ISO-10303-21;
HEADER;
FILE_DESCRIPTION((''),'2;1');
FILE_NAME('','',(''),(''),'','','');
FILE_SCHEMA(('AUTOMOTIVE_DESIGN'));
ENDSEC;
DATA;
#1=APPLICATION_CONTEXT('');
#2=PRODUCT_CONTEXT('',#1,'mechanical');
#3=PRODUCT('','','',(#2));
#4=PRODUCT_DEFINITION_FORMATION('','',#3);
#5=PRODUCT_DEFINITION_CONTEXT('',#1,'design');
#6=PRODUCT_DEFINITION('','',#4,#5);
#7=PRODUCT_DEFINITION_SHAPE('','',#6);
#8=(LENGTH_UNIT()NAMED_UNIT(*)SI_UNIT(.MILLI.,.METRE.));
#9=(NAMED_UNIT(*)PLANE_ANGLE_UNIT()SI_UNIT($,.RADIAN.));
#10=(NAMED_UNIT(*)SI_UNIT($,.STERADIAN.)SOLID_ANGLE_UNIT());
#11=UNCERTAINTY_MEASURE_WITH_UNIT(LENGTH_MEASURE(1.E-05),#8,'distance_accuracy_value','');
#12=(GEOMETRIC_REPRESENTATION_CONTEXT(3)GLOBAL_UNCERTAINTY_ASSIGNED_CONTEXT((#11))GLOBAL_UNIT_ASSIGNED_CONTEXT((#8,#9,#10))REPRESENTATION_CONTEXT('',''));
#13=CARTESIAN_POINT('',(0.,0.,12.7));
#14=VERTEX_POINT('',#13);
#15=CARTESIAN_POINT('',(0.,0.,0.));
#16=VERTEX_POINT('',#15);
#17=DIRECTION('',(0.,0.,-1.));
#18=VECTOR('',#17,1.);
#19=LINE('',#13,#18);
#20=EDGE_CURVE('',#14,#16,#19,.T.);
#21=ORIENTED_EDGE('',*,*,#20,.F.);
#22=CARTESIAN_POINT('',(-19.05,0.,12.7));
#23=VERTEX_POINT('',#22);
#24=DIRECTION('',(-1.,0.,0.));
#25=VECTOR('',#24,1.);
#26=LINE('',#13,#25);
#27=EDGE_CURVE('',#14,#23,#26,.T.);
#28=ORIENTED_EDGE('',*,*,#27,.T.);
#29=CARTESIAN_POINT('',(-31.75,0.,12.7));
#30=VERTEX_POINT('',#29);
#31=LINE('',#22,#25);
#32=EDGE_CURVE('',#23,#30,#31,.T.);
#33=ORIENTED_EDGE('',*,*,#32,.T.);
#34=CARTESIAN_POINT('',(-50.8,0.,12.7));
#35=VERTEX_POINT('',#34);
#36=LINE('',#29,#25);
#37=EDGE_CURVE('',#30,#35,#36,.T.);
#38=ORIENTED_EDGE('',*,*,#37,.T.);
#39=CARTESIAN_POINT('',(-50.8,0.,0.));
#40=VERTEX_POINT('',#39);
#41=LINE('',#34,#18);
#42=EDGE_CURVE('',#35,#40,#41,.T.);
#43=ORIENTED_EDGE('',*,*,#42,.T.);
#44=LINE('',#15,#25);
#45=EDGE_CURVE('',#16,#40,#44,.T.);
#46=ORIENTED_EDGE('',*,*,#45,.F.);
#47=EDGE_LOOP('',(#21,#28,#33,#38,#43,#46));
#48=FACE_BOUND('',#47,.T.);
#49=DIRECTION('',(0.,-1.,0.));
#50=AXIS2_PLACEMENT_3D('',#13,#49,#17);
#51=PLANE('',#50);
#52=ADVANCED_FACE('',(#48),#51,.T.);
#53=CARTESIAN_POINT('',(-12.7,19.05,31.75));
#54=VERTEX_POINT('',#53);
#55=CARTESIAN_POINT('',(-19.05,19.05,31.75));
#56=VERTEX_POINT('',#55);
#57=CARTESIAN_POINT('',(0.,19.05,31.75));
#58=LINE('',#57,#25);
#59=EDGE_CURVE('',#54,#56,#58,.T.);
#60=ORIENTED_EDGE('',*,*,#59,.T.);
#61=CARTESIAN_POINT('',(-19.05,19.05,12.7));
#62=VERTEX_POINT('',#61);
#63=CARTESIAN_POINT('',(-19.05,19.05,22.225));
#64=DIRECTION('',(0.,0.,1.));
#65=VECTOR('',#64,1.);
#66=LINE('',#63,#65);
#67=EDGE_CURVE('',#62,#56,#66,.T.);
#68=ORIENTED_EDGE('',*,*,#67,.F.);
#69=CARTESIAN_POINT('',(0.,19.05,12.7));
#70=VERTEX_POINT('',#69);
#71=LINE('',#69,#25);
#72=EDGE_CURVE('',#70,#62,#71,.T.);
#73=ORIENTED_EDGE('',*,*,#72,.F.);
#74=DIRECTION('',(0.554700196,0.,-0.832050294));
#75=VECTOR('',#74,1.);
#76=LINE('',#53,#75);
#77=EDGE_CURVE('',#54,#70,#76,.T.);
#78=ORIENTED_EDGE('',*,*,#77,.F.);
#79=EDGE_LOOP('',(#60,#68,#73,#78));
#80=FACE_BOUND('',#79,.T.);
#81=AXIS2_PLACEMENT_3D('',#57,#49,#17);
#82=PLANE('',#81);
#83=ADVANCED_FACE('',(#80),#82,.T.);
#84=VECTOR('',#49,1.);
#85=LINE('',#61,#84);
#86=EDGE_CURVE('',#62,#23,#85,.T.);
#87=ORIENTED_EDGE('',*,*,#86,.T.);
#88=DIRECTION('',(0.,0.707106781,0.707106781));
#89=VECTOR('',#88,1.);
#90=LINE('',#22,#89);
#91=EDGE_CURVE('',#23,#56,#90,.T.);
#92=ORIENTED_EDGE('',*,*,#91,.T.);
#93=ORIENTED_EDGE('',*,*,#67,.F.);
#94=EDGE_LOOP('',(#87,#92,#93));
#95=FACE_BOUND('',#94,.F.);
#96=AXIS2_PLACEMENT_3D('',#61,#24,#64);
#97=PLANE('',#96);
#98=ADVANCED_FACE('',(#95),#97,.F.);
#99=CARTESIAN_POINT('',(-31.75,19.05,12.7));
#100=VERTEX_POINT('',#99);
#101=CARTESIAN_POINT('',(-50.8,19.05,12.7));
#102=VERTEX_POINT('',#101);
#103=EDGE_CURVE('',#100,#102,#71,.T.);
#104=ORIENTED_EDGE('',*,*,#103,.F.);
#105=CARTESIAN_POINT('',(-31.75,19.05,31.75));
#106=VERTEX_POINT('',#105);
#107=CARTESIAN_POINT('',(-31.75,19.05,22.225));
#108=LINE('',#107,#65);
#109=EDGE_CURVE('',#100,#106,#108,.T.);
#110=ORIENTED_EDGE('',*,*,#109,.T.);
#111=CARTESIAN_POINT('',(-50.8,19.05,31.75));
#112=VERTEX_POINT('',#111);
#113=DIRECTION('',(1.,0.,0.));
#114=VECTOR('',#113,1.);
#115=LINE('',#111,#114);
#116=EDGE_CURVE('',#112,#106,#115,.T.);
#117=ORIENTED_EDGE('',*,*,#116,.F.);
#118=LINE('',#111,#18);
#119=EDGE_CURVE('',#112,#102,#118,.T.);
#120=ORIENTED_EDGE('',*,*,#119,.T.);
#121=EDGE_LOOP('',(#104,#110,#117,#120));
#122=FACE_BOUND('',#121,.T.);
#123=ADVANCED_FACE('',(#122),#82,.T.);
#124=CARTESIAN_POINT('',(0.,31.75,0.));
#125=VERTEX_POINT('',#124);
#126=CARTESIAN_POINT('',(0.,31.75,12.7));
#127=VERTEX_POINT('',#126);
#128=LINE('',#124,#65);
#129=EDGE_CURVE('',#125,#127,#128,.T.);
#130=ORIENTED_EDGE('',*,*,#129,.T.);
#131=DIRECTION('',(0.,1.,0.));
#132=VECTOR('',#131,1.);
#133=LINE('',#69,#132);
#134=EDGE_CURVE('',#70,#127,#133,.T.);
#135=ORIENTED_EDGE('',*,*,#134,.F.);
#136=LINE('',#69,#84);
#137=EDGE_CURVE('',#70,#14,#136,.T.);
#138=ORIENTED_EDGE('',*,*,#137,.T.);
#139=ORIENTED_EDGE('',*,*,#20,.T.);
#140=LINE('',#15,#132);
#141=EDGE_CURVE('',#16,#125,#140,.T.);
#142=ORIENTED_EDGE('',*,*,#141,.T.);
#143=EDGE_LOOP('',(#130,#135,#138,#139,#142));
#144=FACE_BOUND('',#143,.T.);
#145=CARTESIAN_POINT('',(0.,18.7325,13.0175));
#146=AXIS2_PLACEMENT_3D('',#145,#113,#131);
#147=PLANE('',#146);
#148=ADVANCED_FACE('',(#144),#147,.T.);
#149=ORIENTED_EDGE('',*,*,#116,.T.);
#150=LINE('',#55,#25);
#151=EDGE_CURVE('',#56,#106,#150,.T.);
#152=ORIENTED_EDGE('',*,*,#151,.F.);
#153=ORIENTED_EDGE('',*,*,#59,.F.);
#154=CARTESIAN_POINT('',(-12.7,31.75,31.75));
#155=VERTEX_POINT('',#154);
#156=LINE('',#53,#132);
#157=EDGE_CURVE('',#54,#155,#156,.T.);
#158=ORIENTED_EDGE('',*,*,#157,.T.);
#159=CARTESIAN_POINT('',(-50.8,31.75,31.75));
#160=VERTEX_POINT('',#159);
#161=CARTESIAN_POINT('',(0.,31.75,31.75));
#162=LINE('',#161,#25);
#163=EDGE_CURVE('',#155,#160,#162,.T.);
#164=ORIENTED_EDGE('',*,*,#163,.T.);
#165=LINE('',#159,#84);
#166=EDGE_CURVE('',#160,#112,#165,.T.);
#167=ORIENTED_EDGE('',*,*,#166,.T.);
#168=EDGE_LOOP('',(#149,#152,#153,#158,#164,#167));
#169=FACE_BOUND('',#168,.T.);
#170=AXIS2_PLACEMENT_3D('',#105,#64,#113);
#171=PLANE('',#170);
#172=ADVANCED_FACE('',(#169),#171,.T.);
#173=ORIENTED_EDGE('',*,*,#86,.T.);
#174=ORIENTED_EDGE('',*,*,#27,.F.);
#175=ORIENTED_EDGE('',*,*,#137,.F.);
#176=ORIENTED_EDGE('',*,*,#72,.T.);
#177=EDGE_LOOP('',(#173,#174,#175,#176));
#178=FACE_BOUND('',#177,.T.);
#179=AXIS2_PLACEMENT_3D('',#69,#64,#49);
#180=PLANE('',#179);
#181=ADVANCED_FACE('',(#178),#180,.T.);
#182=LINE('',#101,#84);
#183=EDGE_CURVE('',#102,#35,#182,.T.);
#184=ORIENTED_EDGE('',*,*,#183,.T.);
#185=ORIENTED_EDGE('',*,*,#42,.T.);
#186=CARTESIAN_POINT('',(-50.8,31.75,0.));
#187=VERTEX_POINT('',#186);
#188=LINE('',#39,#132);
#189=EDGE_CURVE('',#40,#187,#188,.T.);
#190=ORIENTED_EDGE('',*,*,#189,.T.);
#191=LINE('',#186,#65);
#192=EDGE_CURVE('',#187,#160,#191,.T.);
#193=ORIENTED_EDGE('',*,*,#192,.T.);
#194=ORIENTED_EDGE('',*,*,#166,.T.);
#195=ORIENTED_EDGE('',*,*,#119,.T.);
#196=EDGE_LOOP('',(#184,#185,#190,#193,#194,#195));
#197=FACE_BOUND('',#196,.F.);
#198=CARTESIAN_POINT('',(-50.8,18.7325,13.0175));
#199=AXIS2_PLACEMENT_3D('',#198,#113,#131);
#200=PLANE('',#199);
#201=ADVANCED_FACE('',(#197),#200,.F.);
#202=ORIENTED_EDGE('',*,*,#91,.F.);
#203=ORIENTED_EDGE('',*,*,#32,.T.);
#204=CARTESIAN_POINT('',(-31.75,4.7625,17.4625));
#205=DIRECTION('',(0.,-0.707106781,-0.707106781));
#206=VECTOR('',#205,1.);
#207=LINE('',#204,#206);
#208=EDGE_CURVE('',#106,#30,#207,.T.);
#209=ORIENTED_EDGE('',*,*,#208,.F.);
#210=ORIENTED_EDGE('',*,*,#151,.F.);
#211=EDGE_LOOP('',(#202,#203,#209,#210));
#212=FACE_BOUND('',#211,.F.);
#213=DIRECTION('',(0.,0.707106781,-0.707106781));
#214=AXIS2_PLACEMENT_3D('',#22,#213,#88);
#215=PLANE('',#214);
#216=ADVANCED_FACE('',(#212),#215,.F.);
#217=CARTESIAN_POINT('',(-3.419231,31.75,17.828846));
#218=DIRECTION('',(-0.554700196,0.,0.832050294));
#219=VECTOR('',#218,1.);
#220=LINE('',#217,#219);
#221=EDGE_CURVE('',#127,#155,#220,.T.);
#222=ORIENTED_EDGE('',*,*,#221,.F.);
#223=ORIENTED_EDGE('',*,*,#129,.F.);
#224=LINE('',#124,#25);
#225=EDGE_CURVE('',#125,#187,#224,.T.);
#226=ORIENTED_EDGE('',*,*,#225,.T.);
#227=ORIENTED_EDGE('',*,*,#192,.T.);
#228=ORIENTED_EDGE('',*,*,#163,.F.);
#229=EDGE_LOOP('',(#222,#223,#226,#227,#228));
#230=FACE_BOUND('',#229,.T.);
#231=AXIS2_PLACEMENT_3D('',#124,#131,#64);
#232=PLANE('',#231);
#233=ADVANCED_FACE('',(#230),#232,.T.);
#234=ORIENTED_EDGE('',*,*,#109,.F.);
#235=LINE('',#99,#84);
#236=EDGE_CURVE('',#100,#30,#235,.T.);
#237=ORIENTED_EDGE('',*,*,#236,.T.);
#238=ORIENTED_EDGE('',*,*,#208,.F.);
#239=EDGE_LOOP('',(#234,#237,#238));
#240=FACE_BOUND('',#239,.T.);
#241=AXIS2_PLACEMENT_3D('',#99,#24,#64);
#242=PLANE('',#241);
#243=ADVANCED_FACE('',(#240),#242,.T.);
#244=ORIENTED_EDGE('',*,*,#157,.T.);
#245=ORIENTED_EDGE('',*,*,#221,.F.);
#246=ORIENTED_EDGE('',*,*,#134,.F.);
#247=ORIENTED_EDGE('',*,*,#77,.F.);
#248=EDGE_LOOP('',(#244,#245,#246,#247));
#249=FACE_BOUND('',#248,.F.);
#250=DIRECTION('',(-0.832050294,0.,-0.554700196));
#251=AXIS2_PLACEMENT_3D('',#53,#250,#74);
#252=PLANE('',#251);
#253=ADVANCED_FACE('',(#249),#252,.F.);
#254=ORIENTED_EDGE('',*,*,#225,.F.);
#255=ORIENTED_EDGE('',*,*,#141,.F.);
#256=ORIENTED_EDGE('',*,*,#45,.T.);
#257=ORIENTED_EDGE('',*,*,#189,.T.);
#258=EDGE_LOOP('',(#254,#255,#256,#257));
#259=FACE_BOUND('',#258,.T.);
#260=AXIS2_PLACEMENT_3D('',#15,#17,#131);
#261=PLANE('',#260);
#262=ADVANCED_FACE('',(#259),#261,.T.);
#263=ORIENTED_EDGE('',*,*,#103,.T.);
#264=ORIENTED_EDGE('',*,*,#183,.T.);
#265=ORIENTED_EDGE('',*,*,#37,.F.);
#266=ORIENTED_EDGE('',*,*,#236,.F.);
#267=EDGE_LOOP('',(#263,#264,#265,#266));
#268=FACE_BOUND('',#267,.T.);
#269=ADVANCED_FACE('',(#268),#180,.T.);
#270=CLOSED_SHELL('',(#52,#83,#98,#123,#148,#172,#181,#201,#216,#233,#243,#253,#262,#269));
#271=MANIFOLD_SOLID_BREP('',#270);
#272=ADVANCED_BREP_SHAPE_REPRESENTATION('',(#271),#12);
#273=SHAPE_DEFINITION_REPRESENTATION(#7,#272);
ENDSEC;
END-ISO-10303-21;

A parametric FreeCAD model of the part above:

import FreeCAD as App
import Part
import Sketcher
from FreeCAD import Vector
Q = App.Units.Quantity

doc = App.newDocument("Part")
body = doc.addObject("PartDesign::Body", "Body")

# Sketch on YZ plane
sketch1 = body.newObject("Sketcher::SketchObject", "Sketch")
sketch1.AttachmentSupport = (doc.getObject("YZ_Plane"), [""])
sketch1.MapMode = "FlatFace"
sketch1.addGeometry([
    Part.LineSegment(Vector(0, 13, 0), Vector(0, 0, 0)),  # 0
    Part.LineSegment(Vector(0, 0, 0), Vector(32, 0, 0)),  # 1
    Part.LineSegment(Vector(32, 0, 0), Vector(32, 32, 0)),  # 2
    Part.LineSegment(Vector(32, 32, 0), Vector(19, 32, 0)),  # 3
    Part.LineSegment(Vector(19, 32, 0), Vector(19, 13, 0)),  # 4
    Part.LineSegment(Vector(19, 13, 0), Vector(0, 13, 0)),  # 5
], False)
sketch1.addConstraint([
    Sketcher.Constraint("Coincident", 0, 2, 1, 1),
    Sketcher.Constraint("Coincident", 1, 2, 2, 1),
    Sketcher.Constraint("Coincident", 2, 2, 3, 1),
    Sketcher.Constraint("Coincident", 3, 2, 4, 1),
    Sketcher.Constraint("Coincident", 4, 2, 5, 1),
    Sketcher.Constraint("Coincident", 5, 2, 0, 1),
    Sketcher.Constraint("Vertical", 0),
    Sketcher.Constraint("Horizontal", 1),
    Sketcher.Constraint("Vertical", 2),
    Sketcher.Constraint("Horizontal", 3),
    Sketcher.Constraint("Vertical", 4),
    Sketcher.Constraint("Horizontal", 5),
    Sketcher.Constraint("Coincident", 0, 2, -1, 1),
    Sketcher.Constraint("Equal", 3, 0),
    Sketcher.Constraint("Equal", 1, 2),
    Sketcher.Constraint("DistanceX", 3, 2, 3, 1, Q("0.5 in")),
    Sketcher.Constraint("DistanceX", 1, 1, 1, 2, Q("1.25 in")),
])
pad1 = body.newObject("PartDesign::Pad", "Pad")
pad1.Profile = sketch1
pad1.Length = Q("2 in")
pad1.Reversed = True

# Sketch on XZ plane
sketch2 = body.newObject("Sketcher::SketchObject", "Sketch001")
sketch2.AttachmentSupport = (doc.getObject("XZ_Plane"), [""])
sketch2.MapMode = "FlatFace"
sketch2.AttachmentOffset = App.Placement(Vector(0, 0, -0.75 * 25.4), App.Rotation())
sketch2.addGeometry([
    Part.LineSegment(Vector(0, 32, 0), Vector(-13, 32, 0)),
    Part.LineSegment(Vector(-13, 32, 0), Vector(0, 13, 0)),
    Part.LineSegment(Vector(0, 13, 0), Vector(0, 32, 0)),
], False)
sketch2.addConstraint([
    Sketcher.Constraint("Coincident", 0, 2, 1, 1),
    Sketcher.Constraint("Coincident", 1, 2, 2, 1),
    Sketcher.Constraint("Coincident", 2, 2, 0, 1),
    Sketcher.Constraint("Horizontal", 0),
    Sketcher.Constraint("Vertical", 2),
    Sketcher.Constraint("PointOnObject", 1, 2, -2),
    Sketcher.Constraint("DistanceX", 0, 2, 0, 1, Q("0.5 in")),
    Sketcher.Constraint("DistanceY", 2, 1, 2, 2, Q("0.75 in")),
    Sketcher.Constraint("DistanceY", -1, 1, 1, 2, Q("0.5 in")),
])
pocket1 = body.newObject("PartDesign::Pocket", "Pocket")
pocket1.Profile = sketch2
pocket1.Length = Q("1 in")

# Sketch on XZ plane
sketch3 = body.newObject("Sketcher::SketchObject", "Sketch002")
sketch3.AttachmentSupport = (doc.getObject("XZ_Plane"), [""])
sketch3.MapMode = "FlatFace"
sketch3.AttachmentOffset = App.Placement(Vector(0, 0, -0.75 * 25.4), App.Rotation())
sketch3.addGeometry([
    Part.LineSegment(Vector(-32, 32, 0), Vector(-32, 13, 0)),
    Part.LineSegment(Vector(-32, 13, 0), Vector(-19, 13, 0)),
    Part.LineSegment(Vector(-19, 13, 0), Vector(-19, 32, 0)),
    Part.LineSegment(Vector(-19, 32, 0), Vector(-32, 32, 0)),
], False)
sketch3.addConstraint([
    Sketcher.Constraint("Coincident", 0, 2, 1, 1),
    Sketcher.Constraint("Coincident", 1, 2, 2, 1),
    Sketcher.Constraint("Coincident", 2, 2, 3, 1),
    Sketcher.Constraint("Coincident", 3, 2, 0, 1),
    Sketcher.Constraint("Vertical", 0),
    Sketcher.Constraint("Horizontal", 1),
    Sketcher.Constraint("Vertical", 2),
    Sketcher.Constraint("Horizontal", 3),
    Sketcher.Constraint("DistanceX", 1, 1, 1, 2, Q("0.5 in")),
    Sketcher.Constraint("DistanceY", 0, 2, 0, 1, Q("0.75 in")),
    Sketcher.Constraint("DistanceY", -1, 1, 0, 2, Q("0.5 in")),
    Sketcher.Constraint("DistanceX", 0, 2, -1, 1, Q("1.25 in")),
])
pad2 = body.newObject("PartDesign::Pad", "Pad001")
pad2.Profile = sketch3
pad2.Length = Q("0.75 in")

# Sketch on YZ plane
sketch4 = body.newObject("Sketcher::SketchObject", "Sketch003")
sketch4.AttachmentSupport = (doc.getObject("YZ_Plane"), [""])
sketch4.MapMode = "FlatFace"
sketch4.AttachmentOffset = App.Placement(Vector(0, 0, -0.75 * 25.4), App.Rotation())
sketch4.addGeometry([
    Part.LineSegment(Vector(0, 13, 0), Vector(19, 32, 0)),
    Part.LineSegment(Vector(19, 32, 0), Vector(0, 32, 0)),
    Part.LineSegment(Vector(0, 32, 0), Vector(0, 13, 0)),
], False)
sketch4.addConstraint([
    Sketcher.Constraint("Coincident", 0, 2, 1, 1),
    Sketcher.Constraint("Coincident", 1, 2, 2, 1),
    Sketcher.Constraint("Coincident", 2, 2, 0, 1),
    Sketcher.Constraint("Horizontal", 1),
    Sketcher.Constraint("Vertical", 2),
    Sketcher.Constraint("PointOnObject", 1, 2, -2),
    Sketcher.Constraint("Equal", 1, 2),
    Sketcher.Constraint("DistanceX", 1, 2, 1, 1, Q("0.75 in")),
    Sketcher.Constraint("DistanceY", -1, 1, 2, 2, Q("0.5 in")),
])
pocket2 = body.newObject("PartDesign::Pocket", "Pocket001")
pocket2.Profile = sketch4
pocket2.Length = Q("1 in")

doc.recompute()
